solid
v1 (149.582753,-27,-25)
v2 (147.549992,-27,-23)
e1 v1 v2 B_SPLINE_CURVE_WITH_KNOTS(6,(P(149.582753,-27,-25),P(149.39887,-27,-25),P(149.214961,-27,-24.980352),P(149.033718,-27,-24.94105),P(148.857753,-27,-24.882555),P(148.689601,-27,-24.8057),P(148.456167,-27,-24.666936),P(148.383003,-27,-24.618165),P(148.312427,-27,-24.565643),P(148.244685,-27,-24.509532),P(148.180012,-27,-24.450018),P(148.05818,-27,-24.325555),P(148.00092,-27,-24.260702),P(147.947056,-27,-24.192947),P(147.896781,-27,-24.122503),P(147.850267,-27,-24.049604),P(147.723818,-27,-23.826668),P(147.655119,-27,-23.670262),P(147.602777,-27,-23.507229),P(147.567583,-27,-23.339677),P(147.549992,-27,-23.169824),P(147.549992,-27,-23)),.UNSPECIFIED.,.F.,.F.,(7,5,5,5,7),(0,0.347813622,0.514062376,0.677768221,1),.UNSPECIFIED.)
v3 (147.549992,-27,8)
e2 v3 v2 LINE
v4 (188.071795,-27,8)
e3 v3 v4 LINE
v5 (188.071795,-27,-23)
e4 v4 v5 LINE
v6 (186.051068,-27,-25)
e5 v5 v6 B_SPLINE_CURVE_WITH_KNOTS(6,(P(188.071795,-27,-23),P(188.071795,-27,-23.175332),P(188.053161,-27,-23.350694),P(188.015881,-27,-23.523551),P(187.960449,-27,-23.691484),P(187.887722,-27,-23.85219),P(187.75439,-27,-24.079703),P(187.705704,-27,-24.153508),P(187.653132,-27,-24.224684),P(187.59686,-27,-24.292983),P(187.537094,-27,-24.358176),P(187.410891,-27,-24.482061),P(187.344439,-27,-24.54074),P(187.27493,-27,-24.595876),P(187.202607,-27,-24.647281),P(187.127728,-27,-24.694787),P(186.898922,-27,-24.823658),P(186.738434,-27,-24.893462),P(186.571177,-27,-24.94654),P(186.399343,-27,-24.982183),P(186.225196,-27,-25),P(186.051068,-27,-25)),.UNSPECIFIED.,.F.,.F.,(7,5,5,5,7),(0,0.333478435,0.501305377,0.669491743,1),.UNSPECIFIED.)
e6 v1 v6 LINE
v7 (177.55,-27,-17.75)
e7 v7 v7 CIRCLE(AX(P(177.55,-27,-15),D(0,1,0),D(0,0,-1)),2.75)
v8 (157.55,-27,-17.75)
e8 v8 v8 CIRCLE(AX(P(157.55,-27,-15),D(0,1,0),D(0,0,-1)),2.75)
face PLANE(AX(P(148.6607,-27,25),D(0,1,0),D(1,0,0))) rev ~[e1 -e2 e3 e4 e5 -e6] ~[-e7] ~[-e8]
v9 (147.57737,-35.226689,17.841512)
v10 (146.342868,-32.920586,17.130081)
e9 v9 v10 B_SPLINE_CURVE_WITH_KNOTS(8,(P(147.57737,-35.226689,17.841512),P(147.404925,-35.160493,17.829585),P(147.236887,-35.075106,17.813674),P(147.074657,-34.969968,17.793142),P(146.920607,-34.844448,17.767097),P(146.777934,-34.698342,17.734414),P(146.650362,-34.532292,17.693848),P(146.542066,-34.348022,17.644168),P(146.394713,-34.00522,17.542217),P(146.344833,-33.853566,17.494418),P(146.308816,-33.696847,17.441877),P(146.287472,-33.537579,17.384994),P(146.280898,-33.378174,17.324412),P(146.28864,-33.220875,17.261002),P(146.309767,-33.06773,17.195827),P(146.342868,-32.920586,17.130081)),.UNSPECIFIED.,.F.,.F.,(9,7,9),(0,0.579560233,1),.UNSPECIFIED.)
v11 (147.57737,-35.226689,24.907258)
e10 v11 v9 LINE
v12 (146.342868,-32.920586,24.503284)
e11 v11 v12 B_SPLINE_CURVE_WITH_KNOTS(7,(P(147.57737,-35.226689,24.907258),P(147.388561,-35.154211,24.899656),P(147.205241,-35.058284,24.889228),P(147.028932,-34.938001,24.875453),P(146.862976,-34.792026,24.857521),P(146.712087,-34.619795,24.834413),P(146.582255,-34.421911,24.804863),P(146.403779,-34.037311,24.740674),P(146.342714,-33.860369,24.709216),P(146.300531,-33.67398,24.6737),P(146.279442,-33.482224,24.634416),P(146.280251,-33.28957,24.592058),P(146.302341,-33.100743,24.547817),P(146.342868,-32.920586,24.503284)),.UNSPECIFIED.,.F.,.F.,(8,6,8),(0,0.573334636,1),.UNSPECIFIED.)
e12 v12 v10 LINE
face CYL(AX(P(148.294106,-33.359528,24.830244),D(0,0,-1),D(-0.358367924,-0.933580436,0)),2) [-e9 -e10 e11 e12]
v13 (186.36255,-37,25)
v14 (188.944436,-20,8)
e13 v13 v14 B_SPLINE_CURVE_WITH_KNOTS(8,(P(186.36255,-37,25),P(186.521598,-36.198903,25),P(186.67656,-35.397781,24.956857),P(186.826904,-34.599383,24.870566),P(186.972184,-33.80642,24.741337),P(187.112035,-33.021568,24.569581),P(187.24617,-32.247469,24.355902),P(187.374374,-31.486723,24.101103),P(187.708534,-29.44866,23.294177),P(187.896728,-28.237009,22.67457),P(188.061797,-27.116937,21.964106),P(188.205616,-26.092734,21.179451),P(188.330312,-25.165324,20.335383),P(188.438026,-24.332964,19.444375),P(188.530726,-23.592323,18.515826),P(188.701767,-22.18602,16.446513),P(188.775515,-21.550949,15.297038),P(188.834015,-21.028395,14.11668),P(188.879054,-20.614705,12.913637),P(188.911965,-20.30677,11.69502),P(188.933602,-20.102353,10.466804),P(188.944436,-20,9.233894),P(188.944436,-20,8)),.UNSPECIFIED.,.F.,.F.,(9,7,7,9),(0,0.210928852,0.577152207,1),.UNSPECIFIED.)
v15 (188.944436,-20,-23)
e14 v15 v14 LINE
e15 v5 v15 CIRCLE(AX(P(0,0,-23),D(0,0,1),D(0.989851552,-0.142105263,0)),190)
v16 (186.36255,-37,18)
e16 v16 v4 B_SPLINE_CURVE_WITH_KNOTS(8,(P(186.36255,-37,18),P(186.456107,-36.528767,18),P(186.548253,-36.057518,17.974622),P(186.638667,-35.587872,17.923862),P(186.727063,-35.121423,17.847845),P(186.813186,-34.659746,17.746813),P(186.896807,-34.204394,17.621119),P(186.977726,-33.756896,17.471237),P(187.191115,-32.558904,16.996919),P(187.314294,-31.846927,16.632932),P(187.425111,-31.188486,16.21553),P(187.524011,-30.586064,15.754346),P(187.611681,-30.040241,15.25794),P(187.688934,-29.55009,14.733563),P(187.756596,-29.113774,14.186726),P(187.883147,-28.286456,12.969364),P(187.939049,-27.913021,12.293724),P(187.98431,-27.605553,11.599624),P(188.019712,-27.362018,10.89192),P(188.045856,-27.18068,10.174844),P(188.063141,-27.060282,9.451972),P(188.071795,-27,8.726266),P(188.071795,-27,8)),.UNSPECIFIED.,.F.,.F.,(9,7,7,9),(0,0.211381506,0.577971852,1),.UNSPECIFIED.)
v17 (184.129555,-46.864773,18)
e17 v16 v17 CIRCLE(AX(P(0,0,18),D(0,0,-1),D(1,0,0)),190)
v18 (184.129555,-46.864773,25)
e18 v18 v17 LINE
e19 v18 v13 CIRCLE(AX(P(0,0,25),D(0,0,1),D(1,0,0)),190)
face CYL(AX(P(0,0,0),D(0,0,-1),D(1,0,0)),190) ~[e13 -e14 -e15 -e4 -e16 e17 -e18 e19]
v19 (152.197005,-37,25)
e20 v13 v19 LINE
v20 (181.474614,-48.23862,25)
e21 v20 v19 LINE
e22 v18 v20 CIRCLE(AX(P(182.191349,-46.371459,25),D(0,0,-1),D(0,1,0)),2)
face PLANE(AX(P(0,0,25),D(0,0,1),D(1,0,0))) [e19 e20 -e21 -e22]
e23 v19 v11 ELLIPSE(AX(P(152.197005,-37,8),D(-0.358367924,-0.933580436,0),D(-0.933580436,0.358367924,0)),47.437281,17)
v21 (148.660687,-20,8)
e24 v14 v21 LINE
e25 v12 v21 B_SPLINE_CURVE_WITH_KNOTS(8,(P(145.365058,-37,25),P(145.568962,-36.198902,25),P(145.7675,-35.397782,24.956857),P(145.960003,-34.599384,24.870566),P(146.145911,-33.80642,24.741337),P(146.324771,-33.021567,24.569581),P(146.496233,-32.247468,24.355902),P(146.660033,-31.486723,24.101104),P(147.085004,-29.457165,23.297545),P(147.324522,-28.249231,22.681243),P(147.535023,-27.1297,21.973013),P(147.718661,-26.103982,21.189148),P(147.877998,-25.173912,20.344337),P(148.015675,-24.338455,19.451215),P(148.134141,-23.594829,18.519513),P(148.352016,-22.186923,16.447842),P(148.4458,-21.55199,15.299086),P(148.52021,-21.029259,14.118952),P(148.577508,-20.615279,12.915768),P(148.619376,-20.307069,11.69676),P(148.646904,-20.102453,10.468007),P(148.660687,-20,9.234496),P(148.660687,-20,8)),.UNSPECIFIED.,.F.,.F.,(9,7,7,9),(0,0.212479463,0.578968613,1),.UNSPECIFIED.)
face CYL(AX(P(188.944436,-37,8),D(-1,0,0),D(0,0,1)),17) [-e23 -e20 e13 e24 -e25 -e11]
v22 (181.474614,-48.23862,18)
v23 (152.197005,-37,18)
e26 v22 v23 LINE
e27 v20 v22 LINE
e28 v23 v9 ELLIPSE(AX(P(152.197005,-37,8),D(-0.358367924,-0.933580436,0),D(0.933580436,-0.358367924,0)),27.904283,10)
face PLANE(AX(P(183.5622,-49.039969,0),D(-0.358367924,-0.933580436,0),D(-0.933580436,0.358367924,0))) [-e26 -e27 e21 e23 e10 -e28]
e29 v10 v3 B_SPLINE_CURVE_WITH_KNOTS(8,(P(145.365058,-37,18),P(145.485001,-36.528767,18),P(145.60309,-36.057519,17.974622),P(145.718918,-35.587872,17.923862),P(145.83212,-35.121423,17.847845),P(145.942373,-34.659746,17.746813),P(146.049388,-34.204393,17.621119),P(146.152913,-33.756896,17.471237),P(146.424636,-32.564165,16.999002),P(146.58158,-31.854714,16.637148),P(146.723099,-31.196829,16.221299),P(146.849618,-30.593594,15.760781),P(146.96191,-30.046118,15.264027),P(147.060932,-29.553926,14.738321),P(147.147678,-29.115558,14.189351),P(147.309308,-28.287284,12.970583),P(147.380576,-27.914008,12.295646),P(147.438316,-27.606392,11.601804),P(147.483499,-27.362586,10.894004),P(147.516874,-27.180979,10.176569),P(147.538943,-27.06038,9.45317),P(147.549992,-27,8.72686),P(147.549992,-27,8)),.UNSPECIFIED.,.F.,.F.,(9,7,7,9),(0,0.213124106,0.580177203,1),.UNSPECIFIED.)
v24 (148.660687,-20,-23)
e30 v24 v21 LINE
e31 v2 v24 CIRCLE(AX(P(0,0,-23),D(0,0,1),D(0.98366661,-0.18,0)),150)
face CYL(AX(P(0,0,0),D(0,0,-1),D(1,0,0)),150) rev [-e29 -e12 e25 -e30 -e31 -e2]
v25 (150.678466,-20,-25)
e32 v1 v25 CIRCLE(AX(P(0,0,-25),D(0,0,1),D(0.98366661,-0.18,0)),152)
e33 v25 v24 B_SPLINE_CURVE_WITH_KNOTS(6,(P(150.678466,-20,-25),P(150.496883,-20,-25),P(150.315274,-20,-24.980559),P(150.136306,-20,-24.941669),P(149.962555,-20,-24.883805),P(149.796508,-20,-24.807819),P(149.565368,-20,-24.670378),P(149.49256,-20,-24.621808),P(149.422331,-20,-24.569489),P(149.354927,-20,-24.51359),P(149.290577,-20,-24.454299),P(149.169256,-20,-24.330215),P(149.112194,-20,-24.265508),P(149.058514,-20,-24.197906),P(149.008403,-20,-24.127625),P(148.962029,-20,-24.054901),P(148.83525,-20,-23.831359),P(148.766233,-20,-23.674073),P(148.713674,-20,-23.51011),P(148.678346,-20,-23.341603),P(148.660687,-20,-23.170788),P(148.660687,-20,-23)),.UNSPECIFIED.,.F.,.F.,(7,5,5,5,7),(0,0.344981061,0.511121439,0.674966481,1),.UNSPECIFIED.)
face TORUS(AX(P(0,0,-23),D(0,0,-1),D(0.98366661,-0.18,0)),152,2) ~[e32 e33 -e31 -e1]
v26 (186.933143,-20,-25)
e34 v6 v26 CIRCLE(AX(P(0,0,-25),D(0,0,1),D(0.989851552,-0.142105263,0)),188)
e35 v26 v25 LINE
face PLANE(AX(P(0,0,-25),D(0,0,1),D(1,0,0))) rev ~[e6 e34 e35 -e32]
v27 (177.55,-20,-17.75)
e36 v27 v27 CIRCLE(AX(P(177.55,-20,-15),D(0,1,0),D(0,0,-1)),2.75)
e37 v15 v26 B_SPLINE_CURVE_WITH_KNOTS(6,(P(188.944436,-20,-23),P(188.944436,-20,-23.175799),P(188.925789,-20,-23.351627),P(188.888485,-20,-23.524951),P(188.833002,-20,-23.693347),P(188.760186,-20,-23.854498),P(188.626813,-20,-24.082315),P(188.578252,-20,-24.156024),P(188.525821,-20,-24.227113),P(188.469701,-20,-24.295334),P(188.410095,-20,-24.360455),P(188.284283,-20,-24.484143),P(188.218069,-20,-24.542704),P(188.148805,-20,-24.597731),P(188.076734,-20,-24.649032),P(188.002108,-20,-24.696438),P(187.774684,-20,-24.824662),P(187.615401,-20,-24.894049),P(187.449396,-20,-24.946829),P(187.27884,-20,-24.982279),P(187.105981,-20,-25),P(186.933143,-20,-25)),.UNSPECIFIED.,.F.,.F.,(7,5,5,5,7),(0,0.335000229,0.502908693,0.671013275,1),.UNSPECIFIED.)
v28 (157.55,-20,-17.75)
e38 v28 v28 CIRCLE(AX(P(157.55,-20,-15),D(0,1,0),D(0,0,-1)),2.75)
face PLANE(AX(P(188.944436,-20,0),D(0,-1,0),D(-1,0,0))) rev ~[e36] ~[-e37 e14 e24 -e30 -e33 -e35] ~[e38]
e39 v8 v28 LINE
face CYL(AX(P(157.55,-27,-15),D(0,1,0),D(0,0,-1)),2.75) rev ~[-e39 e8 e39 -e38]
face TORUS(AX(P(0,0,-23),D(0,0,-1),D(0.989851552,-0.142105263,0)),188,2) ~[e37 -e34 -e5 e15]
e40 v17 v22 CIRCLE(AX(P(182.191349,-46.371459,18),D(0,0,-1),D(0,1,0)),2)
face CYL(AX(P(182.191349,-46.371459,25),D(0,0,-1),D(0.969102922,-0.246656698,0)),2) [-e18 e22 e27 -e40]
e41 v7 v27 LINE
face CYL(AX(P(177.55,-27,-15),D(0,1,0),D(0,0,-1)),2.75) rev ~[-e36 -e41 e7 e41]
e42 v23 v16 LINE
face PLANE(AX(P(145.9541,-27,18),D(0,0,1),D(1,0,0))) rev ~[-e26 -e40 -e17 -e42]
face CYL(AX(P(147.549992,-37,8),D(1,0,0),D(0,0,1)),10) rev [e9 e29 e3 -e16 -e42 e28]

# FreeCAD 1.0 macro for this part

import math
import FreeCAD as App
import Part
import Sketcher

V = App.Vector
Q = App.Units.Quantity


def edges_at(feature, points):
    """Names of the edges that pass closest to the given points."""
    edges = feature.Shape.Edges
    near = lambda p: min(range(len(edges)), key=lambda i: edges[i].distToShape(Part.Vertex(*p))[0])
    return sorted({f"Edge{near(p) + 1}" for p in points})

doc = App.newDocument("Part")
params = doc.addObject("Spreadsheet::Sheet", "Params")
for row, (alias, value) in enumerate([
    ("sketch1_radius", "150 mm"),
    ("sketch1_radius2", "190 mm"),
    ("pad1_length", "50 mm"),
    ("sketch2_height", "43 mm"),
    ("pocket1_length", "50 mm"),
    ("fillet_radius", "10 mm"),
    ("fillet2_radius", "17 mm"),
    ("fillet3_radius", "2 mm"),
    ("fillet4_radius", "2 mm"),
    ("sketch3_diameter", "5.5 mm"),
    ("hole_diameter", "5.5 mm"),
], start=1):
    params.set(f"A{row}", alias)
    params.set(f"B{row}", "=" + value)
    params.setAlias(f"B{row}", alias)

body = doc.addObject("PartDesign::Body", "Body")

# Sketch on XY plane
sketch1 = body.newObject("Sketcher::SketchObject", "Sketch")
sketch1.AttachmentSupport = (doc.getObject("XY_Plane"), [""])
sketch1.MapMode = "FlatFace"
sketch1.addGeometry(Part.ArcOfCircle(Part.Circle(V(0, 0, 0), V(0, 0, 1), 190), math.radians(-14.957655), math.radians(-6.042328)), False)
sketch1.addGeometry(Part.LineSegment(V(188.944436, -20, 0), V(148.660687, -20, 0)), False)
sketch1.addGeometry(Part.ArcOfCircle(Part.Circle(V(0, 0, 0), V(0, 0, 1), 150), math.radians(-13.337724), math.radians(-7.662256)), False)
sketch1.addGeometry(Part.LineSegment(V(145.954079, -34.603566, 0), V(183.5622, -49.039969, 0)), False)
sketch1.addConstraint(Sketcher.Constraint("Coincident", 0, 2, 1, 1))
sketch1.addConstraint(Sketcher.Constraint("Coincident", 1, 2, 2, 2))
sketch1.addConstraint(Sketcher.Constraint("Coincident", 2, 1, 3, 1))
sketch1.addConstraint(Sketcher.Constraint("Coincident", 3, 2, 0, 1))
sketch1.addConstraint(Sketcher.Constraint("Horizontal", 1))
sketch1.addConstraint(Sketcher.Constraint("Coincident", 0, 3, -1, 1))
sketch1.addConstraint(Sketcher.Constraint("Coincident", 2, 3, -1, 1))
sketch1.addConstraint(Sketcher.Constraint("Radius", 2, 150.0))
sketch1.addConstraint(Sketcher.Constraint("DistanceY", 0, 2, -1, 1, 20.0))
sketch1.addConstraint(Sketcher.Constraint("Radius", 0, 190.0))
sketch1.addConstraint(Sketcher.Constraint("Angle", 3, Q("-21 deg")))
sketch1.addConstraint(Sketcher.Constraint("DistanceY", 3, 2, -1, 1, 49.04))
sketch1.setExpression("Constraints[7]", "Params.sketch1_radius")
sketch1.setExpression("Constraints[9]", "Params.sketch1_radius2")
pad1 = body.newObject("PartDesign::Pad", "Pad")
pad1.Profile = sketch1
pad1.setExpression("Length", "Params.pad1_length")
pad1.Midplane = True

# Sketch on XZ plane
sketch2 = body.newObject("Sketcher::SketchObject", "Sketch001")
sketch2.AttachmentSupport = (doc.getObject("XZ_Plane"), [""])
sketch2.MapMode = "FlatFace"
sketch2.AttachmentOffset = App.Placement(V(0, 0, 27), App.Rotation())
sketch2.addGeometry(Part.LineSegment(V(145.9541, -25, 0), V(145.9541, 18, 0)), False)
sketch2.addGeometry(Part.LineSegment(V(145.9541, 18, 0), V(188.9444, 18, 0)), False)
sketch2.addGeometry(Part.LineSegment(V(188.9444, 18, 0), V(188.9444, -25, 0)), False)
sketch2.addGeometry(Part.LineSegment(V(188.9444, -25, 0), V(145.9541, -25, 0)), False)
sketch2.addConstraint(Sketcher.Constraint("Coincident", 0, 2, 1, 1))
sketch2.addConstraint(Sketcher.Constraint("Coincident", 1, 2, 2, 1))
sketch2.addConstraint(Sketcher.Constraint("Coincident", 2, 2, 3, 1))
sketch2.addConstraint(Sketcher.Constraint("Coincident", 3, 2, 0, 1))
sketch2.addConstraint(Sketcher.Constraint("Vertical", 0))
sketch2.addConstraint(Sketcher.Constraint("Horizontal", 1))
sketch2.addConstraint(Sketcher.Constraint("Vertical", 2))
sketch2.addConstraint(Sketcher.Constraint("Horizontal", 3))
sketch2.addConstraint(Sketcher.Constraint("DistanceY", 0, 1, 0, 2, 43.0))
sketch2.addConstraint(Sketcher.Constraint("DistanceY", -1, 1, 0, 2, 18.0))
sketch2.addConstraint(Sketcher.Constraint("DistanceX", 1, 1, 1, 2, 42.9903))
sketch2.addConstraint(Sketcher.Constraint("DistanceX", -1, 1, 0, 2, 145.954))
sketch2.setExpression("Constraints[8]", "Params.sketch2_height")
pocket1 = body.newObject("PartDesign::Pocket", "Pocket")
pocket1.Profile = sketch2
pocket1.setExpression("Length", "Params.pocket1_length")
pocket1.Reversed = True
doc.recompute()

fillet = body.newObject("PartDesign::Fillet", "Fillet")
fillet.Base = (pocket1, edges_at(pocket1, [(167.811, -27, 18)]))
fillet.setExpression("Radius", "Params.fillet_radius")
doc.recompute()

fillet2 = body.newObject("PartDesign::Fillet", "Fillet001")
fillet2.Base = (fillet, edges_at(fillet, [(168.803, -20, 25)]))
fillet2.setExpression("Radius", "Params.fillet2_radius")
doc.recompute()

fillet3 = body.newObject("PartDesign::Fillet", "Fillet002")
fillet3.Base = (fillet2, edges_at(fillet2, [(183.562, -49.04, 21.5), (145.954, -34.604, 21.269)]))
fillet3.setExpression("Radius", "Params.fillet3_radius")
doc.recompute()

fillet4 = body.newObject("PartDesign::Fillet", "Fillet003")
fillet4.Base = (fillet3, edges_at(fillet3, [(188.541, -23.504, -25), (148.147, -23.507, -25)]))
fillet4.setExpression("Radius", "Params.fillet4_radius")

# Sketch on XZ plane
sketch3 = body.newObject("Sketcher::SketchObject", "Sketch002")
sketch3.AttachmentSupport = (doc.getObject("XZ_Plane"), [""])
sketch3.MapMode = "FlatFace"
sketch3.AttachmentOffset = App.Placement(V(0, 0, 27), App.Rotation())
sketch3.addGeometry(Part.Circle(V(157.55, -15, 0), V(0, 0, 1), 2.75), False)
sketch3.addGeometry(Part.Circle(V(177.55, -15, 0), V(0, 0, 1), 2.75), False)
sketch3.addConstraint(Sketcher.Constraint("Equal", 0, 1))
sketch3.addConstraint(Sketcher.Constraint("Horizontal", 0, 3, 1, 3))
sketch3.addConstraint(Sketcher.Constraint("Diameter", 0, 5.5))
sketch3.addConstraint(Sketcher.Constraint("DistanceY", 0, 3, -1, 1, 15.0))
sketch3.addConstraint(Sketcher.Constraint("DistanceX", 0, 3, 1, 3, 20.0))
sketch3.addConstraint(Sketcher.Constraint("DistanceX", -1, 1, 0, 3, 157.55))
sketch3.setExpression("Constraints[2]", "Params.sketch3_diameter")
doc.recompute()
hole = body.newObject("PartDesign::Hole", "Hole")
hole.Profile = sketch3
hole.ThreadType = "None"
hole.setExpression("Diameter", "Params.hole_diameter")
hole.DepthType = "ThroughAll"

doc.recompute()
